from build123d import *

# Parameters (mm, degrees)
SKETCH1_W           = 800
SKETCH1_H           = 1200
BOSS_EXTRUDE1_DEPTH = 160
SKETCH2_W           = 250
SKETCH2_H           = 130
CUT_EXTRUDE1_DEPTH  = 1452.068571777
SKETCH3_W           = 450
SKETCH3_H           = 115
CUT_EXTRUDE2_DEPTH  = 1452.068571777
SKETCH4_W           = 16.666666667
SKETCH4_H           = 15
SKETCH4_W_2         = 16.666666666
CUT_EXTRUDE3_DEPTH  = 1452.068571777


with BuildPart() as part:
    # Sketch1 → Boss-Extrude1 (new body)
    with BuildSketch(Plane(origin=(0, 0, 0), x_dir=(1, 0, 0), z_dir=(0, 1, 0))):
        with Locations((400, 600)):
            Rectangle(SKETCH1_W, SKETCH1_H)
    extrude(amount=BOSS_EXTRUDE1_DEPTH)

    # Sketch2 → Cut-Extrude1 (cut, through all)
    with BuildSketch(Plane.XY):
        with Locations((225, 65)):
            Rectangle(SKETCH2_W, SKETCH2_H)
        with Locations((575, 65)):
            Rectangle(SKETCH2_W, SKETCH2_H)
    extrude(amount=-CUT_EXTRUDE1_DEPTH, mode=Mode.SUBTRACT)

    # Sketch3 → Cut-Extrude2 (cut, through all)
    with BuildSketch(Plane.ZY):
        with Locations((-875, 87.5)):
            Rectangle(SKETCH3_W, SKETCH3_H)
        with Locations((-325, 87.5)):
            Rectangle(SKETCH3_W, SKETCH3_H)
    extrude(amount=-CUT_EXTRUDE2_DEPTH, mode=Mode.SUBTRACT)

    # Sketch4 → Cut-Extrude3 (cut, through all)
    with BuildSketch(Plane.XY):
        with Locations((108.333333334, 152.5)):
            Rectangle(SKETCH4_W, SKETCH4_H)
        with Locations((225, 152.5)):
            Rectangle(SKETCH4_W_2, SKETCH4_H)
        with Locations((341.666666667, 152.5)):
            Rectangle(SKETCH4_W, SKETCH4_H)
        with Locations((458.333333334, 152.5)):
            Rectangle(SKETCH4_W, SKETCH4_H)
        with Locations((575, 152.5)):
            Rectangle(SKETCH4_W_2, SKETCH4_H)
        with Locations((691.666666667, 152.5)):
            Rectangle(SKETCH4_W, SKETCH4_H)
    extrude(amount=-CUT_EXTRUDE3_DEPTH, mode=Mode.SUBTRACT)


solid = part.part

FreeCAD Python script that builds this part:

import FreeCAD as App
import Part
import Sketcher
from FreeCAD import Vector
Q = App.Units.Quantity

doc = App.newDocument("Part")
body = doc.addObject("PartDesign::Body", "Body")

# Sketch on XZ plane
sketch1 = doc.addObject("Sketcher::SketchObject", "Sketch")
body.addObject(sketch1)
sketch1.AttachmentSupport = (doc.XZ_Plane, [""])
sketch1.MapMode = "FlatFace"
sketch1.addGeometry([
    Part.LineSegment(Vector(0, -1200, 0), Vector(0, 0, 0)),
    Part.LineSegment(Vector(0, 0, 0), Vector(800, 0, 0)),
    Part.LineSegment(Vector(800, 0, 0), Vector(800, -1200, 0)),
    Part.LineSegment(Vector(800, -1200, 0), Vector(0, -1200, 0)),
], False)
sketch1.addConstraint([
    Sketcher.Constraint("Coincident", 0, 2, 1, 1),
    Sketcher.Constraint("Coincident", 1, 2, 2, 1),
    Sketcher.Constraint("Coincident", 2, 2, 3, 1),
    Sketcher.Constraint("Coincident", 3, 2, 0, 1),
    Sketcher.Constraint("Vertical", 0),
    Sketcher.Constraint("Horizontal", 1),
    Sketcher.Constraint("Vertical", 2),
    Sketcher.Constraint("Horizontal", 3),
    Sketcher.Constraint("Coincident", 0, 2, -1, 1),
    Sketcher.Constraint("DistanceX", 1, 1, 1, 2, Q("800 mm")),
    Sketcher.Constraint("DistanceY", 0, 1, 0, 2, Q("1200 mm")),
])
pad1 = doc.addObject("PartDesign::Pad", "Pad")
body.addObject(pad1)
pad1.Profile = sketch1
pad1.Length = 160
pad1.Reversed = True

# Sketch on XY plane
sketch2 = doc.addObject("Sketcher::SketchObject", "Sketch001")
body.addObject(sketch2)
sketch2.AttachmentSupport = (doc.XY_Plane, [""])
sketch2.MapMode = "FlatFace"
sketch2.addGeometry([
    Part.LineSegment(Vector(100, 130, 0), Vector(100, 0, 0)),  # 0
    Part.LineSegment(Vector(100, 0, 0), Vector(350, 0, 0)),  # 1
    Part.LineSegment(Vector(350, 0, 0), Vector(350, 130, 0)),  # 2
    Part.LineSegment(Vector(350, 130, 0), Vector(100, 130, 0)),  # 3
    Part.LineSegment(Vector(450, 130, 0), Vector(450, 0, 0)),  # 4
    Part.LineSegment(Vector(450, 0, 0), Vector(700, 0, 0)),  # 5
    Part.LineSegment(Vector(700, 0, 0), Vector(700, 130, 0)),  # 6
    Part.LineSegment(Vector(700, 130, 0), Vector(450, 130, 0)),  # 7
], False)
sketch2.addConstraint([
    Sketcher.Constraint("Coincident", 0, 2, 1, 1),
    Sketcher.Constraint("Coincident", 1, 2, 2, 1),
    Sketcher.Constraint("Coincident", 2, 2, 3, 1),
    Sketcher.Constraint("Coincident", 3, 2, 0, 1),
    Sketcher.Constraint("Coincident", 4, 2, 5, 1),
    Sketcher.Constraint("Coincident", 5, 2, 6, 1),
    Sketcher.Constraint("Coincident", 6, 2, 7, 1),
    Sketcher.Constraint("Coincident", 7, 2, 4, 1),
    Sketcher.Constraint("Vertical", 0),
    Sketcher.Constraint("Horizontal", 1),
    Sketcher.Constraint("Vertical", 2),
    Sketcher.Constraint("Horizontal", 3),
    Sketcher.Constraint("Vertical", 4),
    Sketcher.Constraint("Horizontal", 5),
    Sketcher.Constraint("Vertical", 6),
    Sketcher.Constraint("Horizontal", 7),
    Sketcher.Constraint("PointOnObject", 0, 2, -1),
    Sketcher.Constraint("PointOnObject", 4, 2, -1),
    Sketcher.Constraint("Horizontal", 3, 2, 6, 2),
    Sketcher.Constraint("Equal", 3, 5),
    Sketcher.Constraint("DistanceX", 1, 1, 1, 2, Q("250 mm")),
    Sketcher.Constraint("DistanceY", 0, 2, 0, 1, Q("130 mm")),
    Sketcher.Constraint("DistanceX", -1, 1, 0, 2, Q("100 mm")),
    Sketcher.Constraint("DistanceX", -1, 1, 4, 2, Q("450 mm")),
])
pocket1 = doc.addObject("PartDesign::Pocket", "Pocket")
body.addObject(pocket1)
pocket1.Profile = sketch2
pocket1.Type = "ThroughAll"

# Sketch on YZ plane
sketch3 = doc.addObject("Sketcher::SketchObject", "Sketch002")
body.addObject(sketch3)
sketch3.AttachmentSupport = (doc.YZ_Plane, [""])
sketch3.MapMode = "FlatFace"
sketch3.addGeometry([
    Part.LineSegment(Vector(145, -1100, 0), Vector(30, -1100, 0)),  # 0
    Part.LineSegment(Vector(30, -1100, 0), Vector(30, -650, 0)),  # 1
    Part.LineSegment(Vector(30, -650, 0), Vector(145, -650, 0)),  # 2
    Part.LineSegment(Vector(145, -650, 0), Vector(145, -1100, 0)),  # 3
    Part.LineSegment(Vector(145, -550, 0), Vector(30, -550, 0)),  # 4
    Part.LineSegment(Vector(30, -550, 0), Vector(30, -100, 0)),  # 5
    Part.LineSegment(Vector(30, -100, 0), Vector(145, -100, 0)),  # 6
    Part.LineSegment(Vector(145, -100, 0), Vector(145, -550, 0)),  # 7
], False)
sketch3.addConstraint([
    Sketcher.Constraint("Coincident", 0, 2, 1, 1),
    Sketcher.Constraint("Coincident", 1, 2, 2, 1),
    Sketcher.Constraint("Coincident", 2, 2, 3, 1),
    Sketcher.Constraint("Coincident", 3, 2, 0, 1),
    Sketcher.Constraint("Coincident", 4, 2, 5, 1),
    Sketcher.Constraint("Coincident", 5, 2, 6, 1),
    Sketcher.Constraint("Coincident", 6, 2, 7, 1),
    Sketcher.Constraint("Coincident", 7, 2, 4, 1),
    Sketcher.Constraint("Horizontal", 0),
    Sketcher.Constraint("Vertical", 1),
    Sketcher.Constraint("Horizontal", 2),
    Sketcher.Constraint("Vertical", 3),
    Sketcher.Constraint("Horizontal", 4),
    Sketcher.Constraint("Vertical", 5),
    Sketcher.Constraint("Horizontal", 6),
    Sketcher.Constraint("Vertical", 7),
    Sketcher.Constraint("Vertical", 1, 2, 4, 2),
    Sketcher.Constraint("Vertical", 3, 2, 6, 2),
    Sketcher.Constraint("Equal", 3, 5),
    Sketcher.Constraint("DistanceX", 0, 2, 0, 1, Q("115 mm")),
    Sketcher.Constraint("DistanceY", 1, 1, 1, 2, Q("450 mm")),
    Sketcher.Constraint("DistanceX", -1, 1, 0, 2, Q("30 mm")),
    Sketcher.Constraint("DistanceY", 0, 2, -1, 1, Q("1100 mm")),
    Sketcher.Constraint("DistanceY", 4, 2, -1, 1, Q("550 mm")),
])
pocket2 = doc.addObject("PartDesign::Pocket", "Pocket001")
body.addObject(pocket2)
pocket2.Profile = sketch3
pocket2.Type = "ThroughAll"
pocket2.Reversed = True

# Sketch on XY plane
sketch4 = doc.addObject("Sketcher::SketchObject", "Sketch003")
body.addObject(sketch4)
sketch4.AttachmentSupport = (doc.XY_Plane, [""])
sketch4.MapMode = "FlatFace"
sketch4.addGeometry([
    Part.LineSegment(Vector(100, 160, 0), Vector(100, 145, 0)),  # 0
    Part.LineSegment(Vector(100, 145, 0), Vector(117, 145, 0)),  # 1
    Part.LineSegment(Vector(117, 145, 0), Vector(117, 160, 0)),  # 2
    Part.LineSegment(Vector(117, 160, 0), Vector(100, 160, 0)),  # 3
    Part.LineSegment(Vector(217, 160, 0), Vector(217, 145, 0)),  # 4
    Part.LineSegment(Vector(217, 145, 0), Vector(233, 145, 0)),  # 5
    Part.LineSegment(Vector(233, 145, 0), Vector(233, 160, 0)),  # 6
    Part.LineSegment(Vector(233, 160, 0), Vector(217, 160, 0)),  # 7
    Part.LineSegment(Vector(333, 160, 0), Vector(333, 145, 0)),  # 8
    Part.LineSegment(Vector(333, 145, 0), Vector(350, 145, 0)),  # 9
    Part.LineSegment(Vector(350, 145, 0), Vector(350, 160, 0)),  # 10
    Part.LineSegment(Vector(350, 160, 0), Vector(333, 160, 0)),  # 11
    Part.LineSegment(Vector(450, 160, 0), Vector(450, 145, 0)),  # 12
    Part.LineSegment(Vector(450, 145, 0), Vector(467, 145, 0)),  # 13
    Part.LineSegment(Vector(467, 145, 0), Vector(467, 160, 0)),  # 14
    Part.LineSegment(Vector(467, 160, 0), Vector(450, 160, 0)),  # 15
    Part.LineSegment(Vector(567, 160, 0), Vector(567, 145, 0)),  # 16
    Part.LineSegment(Vector(567, 145, 0), Vector(583, 145, 0)),  # 17
    Part.LineSegment(Vector(583, 145, 0), Vector(583, 160, 0)),  # 18
    Part.LineSegment(Vector(583, 160, 0), Vector(567, 160, 0)),  # 19
    Part.LineSegment(Vector(683, 160, 0), Vector(683, 145, 0)),  # 20
    Part.LineSegment(Vector(683, 145, 0), Vector(700, 145, 0)),  # 21
    Part.LineSegment(Vector(700, 145, 0), Vector(700, 160, 0)),  # 22
    Part.LineSegment(Vector(700, 160, 0), Vector(683, 160, 0)),  # 23
], False)
sketch4.addConstraint([
    Sketcher.Constraint("Coincident", 0, 2, 1, 1),
    Sketcher.Constraint("Coincident", 1, 2, 2, 1),
    Sketcher.Constraint("Coincident", 2, 2, 3, 1),
    Sketcher.Constraint("Coincident", 3, 2, 0, 1),
    Sketcher.Constraint("Coincident", 4, 2, 5, 1),
    Sketcher.Constraint("Coincident", 5, 2, 6, 1),
    Sketcher.Constraint("Coincident", 6, 2, 7, 1),
    Sketcher.Constraint("Coincident", 7, 2, 4, 1),
    Sketcher.Constraint("Coincident", 8, 2, 9, 1),
    Sketcher.Constraint("Coincident", 9, 2, 10, 1),
    Sketcher.Constraint("Coincident", 10, 2, 11, 1),
    Sketcher.Constraint("Coincident", 11, 2, 8, 1),
    Sketcher.Constraint("Coincident", 12, 2, 13, 1),
    Sketcher.Constraint("Coincident", 13, 2, 14, 1),
    Sketcher.Constraint("Coincident", 14, 2, 15, 1),
    Sketcher.Constraint("Coincident", 15, 2, 12, 1),
    Sketcher.Constraint("Coincident", 16, 2, 17, 1),
    Sketcher.Constraint("Coincident", 17, 2, 18, 1),
    Sketcher.Constraint("Coincident", 18, 2, 19, 1),
    Sketcher.Constraint("Coincident", 19, 2, 16, 1),
    Sketcher.Constraint("Coincident", 20, 2, 21, 1),
    Sketcher.Constraint("Coincident", 21, 2, 22, 1),
    Sketcher.Constraint("Coincident", 22, 2, 23, 1),
    Sketcher.Constraint("Coincident", 23, 2, 20, 1),
    Sketcher.Constraint("Vertical", 0),
    Sketcher.Constraint("Horizontal", 1),
    Sketcher.Constraint("Vertical", 2),
    Sketcher.Constraint("Horizontal", 3),
    Sketcher.Constraint("Vertical", 4),
    Sketcher.Constraint("Horizontal", 5),
    Sketcher.Constraint("Vertical", 6),
    Sketcher.Constraint("Horizontal", 7),
    Sketcher.Constraint("Vertical", 8),
    Sketcher.Constraint("Horizontal", 9),
    Sketcher.Constraint("Vertical", 10),
    Sketcher.Constraint("Horizontal", 11),
    Sketcher.Constraint("Vertical", 12),
    Sketcher.Constraint("Horizontal", 13),
    Sketcher.Constraint("Vertical", 14),
    Sketcher.Constraint("Horizontal", 15),
    Sketcher.Constraint("Vertical", 16),
    Sketcher.Constraint("Horizontal", 17),
    Sketcher.Constraint("Vertical", 18),
    Sketcher.Constraint("Horizontal", 19),
    Sketcher.Constraint("Vertical", 20),
    Sketcher.Constraint("Horizontal", 21),
    Sketcher.Constraint("Vertical", 22),
    Sketcher.Constraint("Horizontal", 23),
    Sketcher.Constraint("Horizontal", 1, 2, 4, 2),
    Sketcher.Constraint("Horizontal", 3, 2, 6, 2),
    Sketcher.Constraint("Horizontal", 5, 2, 8, 2),
    Sketcher.Constraint("Horizontal", 7, 2, 10, 2),
    Sketcher.Constraint("Horizontal", 9, 2, 12, 2),
    Sketcher.Constraint("Horizontal", 11, 2, 14, 2),
    Sketcher.Constraint("Horizontal", 13, 2, 16, 2),
    Sketcher.Constraint("Horizontal", 15, 2, 18, 2),
    Sketcher.Constraint("Horizontal", 17, 2, 20, 2),
    Sketcher.Constraint("Horizontal", 19, 2, 22, 2),
    Sketcher.Constraint("Equal", 3, 5),
    Sketcher.Constraint("Equal", 7, 9),
    Sketcher.Constraint("Equal", 11, 13),
    Sketcher.Constraint("Equal", 15, 17),
    Sketcher.Constraint("Equal", 19, 21),
    Sketcher.Constraint("DistanceY", 0, 2, 0, 1, Q("15 mm")),
    Sketcher.Constraint("DistanceX", -1, 1, 0, 2, Q("100 mm")),
    Sketcher.Constraint("DistanceY", -1, 1, 0, 2, Q("145 mm")),
    Sketcher.Constraint("DistanceX", -1, 1, 9, 2, Q("350 mm")),
    Sketcher.Constraint("DistanceX", -1, 1, 12, 2, Q("450 mm")),
    Sketcher.Constraint("DistanceX", -1, 1, 21, 2, Q("700 mm")),
    Sketcher.Constraint("DistanceX", 1, 2, 4, 2, Q("100 mm")),
    Sketcher.Constraint("DistanceX", 5, 2, 8, 2, Q("100 mm")),
    Sketcher.Constraint("DistanceX", 13, 2, 16, 2, Q("100 mm")),
])
pocket3 = doc.addObject("PartDesign::Pocket", "Pocket002")
body.addObject(pocket3)
pocket3.Profile = sketch4
pocket3.Type = "ThroughAll"

doc.recompute()
